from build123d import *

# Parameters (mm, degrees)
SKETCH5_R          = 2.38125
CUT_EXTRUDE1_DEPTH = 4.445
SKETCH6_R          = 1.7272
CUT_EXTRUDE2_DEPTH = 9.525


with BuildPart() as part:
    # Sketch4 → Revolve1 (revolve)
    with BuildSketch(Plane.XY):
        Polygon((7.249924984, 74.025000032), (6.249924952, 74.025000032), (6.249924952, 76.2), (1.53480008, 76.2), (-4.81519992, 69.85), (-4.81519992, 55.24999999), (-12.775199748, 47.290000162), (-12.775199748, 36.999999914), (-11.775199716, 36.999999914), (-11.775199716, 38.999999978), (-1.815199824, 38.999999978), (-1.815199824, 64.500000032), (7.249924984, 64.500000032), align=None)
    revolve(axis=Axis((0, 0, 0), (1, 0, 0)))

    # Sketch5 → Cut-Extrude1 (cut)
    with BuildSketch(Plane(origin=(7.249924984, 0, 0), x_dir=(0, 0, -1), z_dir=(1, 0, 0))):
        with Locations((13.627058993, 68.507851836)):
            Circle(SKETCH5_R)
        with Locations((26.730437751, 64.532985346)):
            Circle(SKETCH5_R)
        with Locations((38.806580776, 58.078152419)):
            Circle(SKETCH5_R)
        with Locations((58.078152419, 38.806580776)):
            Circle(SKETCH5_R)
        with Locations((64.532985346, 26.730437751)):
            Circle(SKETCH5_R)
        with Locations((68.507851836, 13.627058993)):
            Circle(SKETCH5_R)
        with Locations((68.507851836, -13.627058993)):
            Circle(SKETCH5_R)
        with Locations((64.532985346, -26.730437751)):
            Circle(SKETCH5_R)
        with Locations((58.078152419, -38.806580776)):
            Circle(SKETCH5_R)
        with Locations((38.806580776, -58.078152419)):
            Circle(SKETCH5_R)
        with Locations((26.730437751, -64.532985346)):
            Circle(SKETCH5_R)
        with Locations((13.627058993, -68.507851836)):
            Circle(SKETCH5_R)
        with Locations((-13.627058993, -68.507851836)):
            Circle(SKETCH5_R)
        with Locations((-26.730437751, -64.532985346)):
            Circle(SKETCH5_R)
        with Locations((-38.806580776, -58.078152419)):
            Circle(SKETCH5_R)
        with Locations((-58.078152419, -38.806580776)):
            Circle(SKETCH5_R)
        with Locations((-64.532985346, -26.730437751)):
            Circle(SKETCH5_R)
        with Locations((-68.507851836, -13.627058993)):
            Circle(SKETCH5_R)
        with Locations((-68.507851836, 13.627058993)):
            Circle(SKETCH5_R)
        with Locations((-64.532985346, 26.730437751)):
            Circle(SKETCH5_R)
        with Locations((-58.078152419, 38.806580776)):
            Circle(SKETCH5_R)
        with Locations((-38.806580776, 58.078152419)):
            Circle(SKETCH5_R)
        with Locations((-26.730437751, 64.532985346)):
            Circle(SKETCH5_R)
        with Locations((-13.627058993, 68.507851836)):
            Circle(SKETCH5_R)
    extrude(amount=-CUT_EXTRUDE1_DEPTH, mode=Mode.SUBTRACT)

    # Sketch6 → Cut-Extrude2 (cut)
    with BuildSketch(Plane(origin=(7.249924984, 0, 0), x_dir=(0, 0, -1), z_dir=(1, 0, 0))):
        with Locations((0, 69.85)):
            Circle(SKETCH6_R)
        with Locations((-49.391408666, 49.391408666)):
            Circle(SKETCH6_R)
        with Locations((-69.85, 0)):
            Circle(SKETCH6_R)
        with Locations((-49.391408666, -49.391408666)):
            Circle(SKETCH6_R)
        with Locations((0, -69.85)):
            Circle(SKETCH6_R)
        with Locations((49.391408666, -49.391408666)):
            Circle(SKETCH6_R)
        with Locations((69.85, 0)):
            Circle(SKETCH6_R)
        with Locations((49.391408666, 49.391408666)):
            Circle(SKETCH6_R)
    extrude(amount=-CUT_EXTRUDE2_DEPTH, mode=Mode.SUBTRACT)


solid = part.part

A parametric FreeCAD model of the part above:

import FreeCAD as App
import Part
import Sketcher
from FreeCAD import Vector
Q = App.Units.Quantity

doc = App.newDocument("Part")
body = doc.addObject("PartDesign::Body", "Body")

sketch1 = doc.addObject("Sketcher::SketchObject", "Sketch")
body.addObject(sketch1)
sketch1.AttachmentSupport = (doc.XY_Plane, [""])
sketch1.MapMode = "FlatFace"
sketch1.addGeometry([
    Part.LineSegment(Vector(7.2, 74, 0), Vector(6.2, 74, 0)),
    Part.LineSegment(Vector(6.2, 74, 0), Vector(6.2, 76.2, 0)),
    Part.LineSegment(Vector(6.2, 76.2, 0), Vector(1.5, 76.2, 0)),
    Part.LineSegment(Vector(1.5, 76.2, 0), Vector(-4.8, 69.8, 0)),
    Part.LineSegment(Vector(-4.8, 69.8, 0), Vector(-4.8, 55.2, 0)),
    Part.LineSegment(Vector(-4.8, 55.2, 0), Vector(-12.8, 47.3, 0)),
    Part.LineSegment(Vector(-12.8, 47.3, 0), Vector(-12.8, 37, 0)),
    Part.LineSegment(Vector(-12.8, 37, 0), Vector(-11.8, 37, 0)),
    Part.LineSegment(Vector(-11.8, 37, 0), Vector(-11.8, 39, 0)),
    Part.LineSegment(Vector(-11.8, 39, 0), Vector(-1.8, 39, 0)),
    Part.LineSegment(Vector(-1.8, 39, 0), Vector(-1.8, 64.5, 0)),
    Part.LineSegment(Vector(-1.8, 64.5, 0), Vector(7.2, 64.5, 0)),
    Part.LineSegment(Vector(7.2, 64.5, 0), Vector(7.2, 74, 0)),
], False)
sketch1.addConstraint([
    Sketcher.Constraint("Coincident", 0, 2, 1, 1),
    Sketcher.Constraint("Coincident", 1, 2, 2, 1),
    Sketcher.Constraint("Coincident", 2, 2, 3, 1),
    Sketcher.Constraint("Coincident", 3, 2, 4, 1),
    Sketcher.Constraint("Coincident", 4, 2, 5, 1),
    Sketcher.Constraint("Coincident", 5, 2, 6, 1),
    Sketcher.Constraint("Coincident", 6, 2, 7, 1),
    Sketcher.Constraint("Coincident", 7, 2, 8, 1),
    Sketcher.Constraint("Coincident", 8, 2, 9, 1),
    Sketcher.Constraint("Coincident", 9, 2, 10, 1),
    Sketcher.Constraint("Coincident", 10, 2, 11, 1),
    Sketcher.Constraint("Coincident", 11, 2, 12, 1),
    Sketcher.Constraint("Coincident", 12, 2, 0, 1),
    Sketcher.Constraint("Horizontal", 0),
    Sketcher.Constraint("Vertical", 1),
    Sketcher.Constraint("Horizontal", 2),
    Sketcher.Constraint("Vertical", 4),
    Sketcher.Constraint("Vertical", 6),
    Sketcher.Constraint("Horizontal", 7),
    Sketcher.Constraint("Vertical", 8),
    Sketcher.Constraint("Horizontal", 9),
    Sketcher.Constraint("Vertical", 10),
    Sketcher.Constraint("Horizontal", 11),
    Sketcher.Constraint("Vertical", 12),
    Sketcher.Constraint("Parallel", 3, 5),
    Sketcher.Constraint("Equal", 0, 7),
    Sketcher.Constraint("DistanceX", 0, 2, 0, 1, Q("1 mm")),
    Sketcher.Constraint("DistanceY", 8, 1, 8, 2, Q("2 mm")),
    Sketcher.Constraint("Angle", 3, Q("-135 deg")),
    Sketcher.Constraint("DistanceY", 4, 2, 4, 1, Q("14.6 mm")),
    Sketcher.Constraint("DistanceY", 10, 1, 10, 2, Q("25.5 mm")),
    Sketcher.Constraint("DistanceY", -1, 1, 6, 2, Q("37 mm")),
    Sketcher.Constraint("DistanceX", 4, 2, 9, 2, Q("3 mm")),
    Sketcher.Constraint("DistanceX", 9, 1, 9, 2, Q("9.96 mm")),
    Sketcher.Constraint("DistanceY", 6, 2, 6, 1, Q("10.29 mm")),
    Sketcher.Constraint("DistanceY", -1, 1, 1, 2, Q("76.2 mm")),
    Sketcher.Constraint("DistanceY", 1, 1, 1, 2, Q("2.175 mm")),
    Sketcher.Constraint("DistanceX", -1, 1, 2, 2, Q("1.5348 mm")),
    Sketcher.Constraint("DistanceX", 2, 2, 2, 1, Q("4.715125 mm")),
])
revolution = doc.addObject("PartDesign::Revolution", "Revolution")
body.addObject(revolution)
revolution.Profile = sketch1
revolution.ReferenceAxis = (sketch1, ["H_Axis"])
revolution.Angle = 360

sketch2 = doc.addObject("Sketcher::SketchObject", "Sketch001")
body.addObject(sketch2)
sketch2.AttachmentSupport = (doc.YZ_Plane, [""])
sketch2.MapMode = "FlatFace"
sketch2.AttachmentOffset = App.Placement(Vector(0, 0, 7.249925), App.Rotation())
sketch2.addGeometry([
    Part.Circle(Vector(68.5, -13.6, 0), Vector(0, 0, 1), 2.4),
    Part.Circle(Vector(64.5, -26.7, 0), Vector(0, 0, 1), 2.4),
    Part.Circle(Vector(58.1, -38.8, 0), Vector(0, 0, 1), 2.4),
    Part.Circle(Vector(38.8, -58.1, 0), Vector(0, 0, 1), 2.4),
    Part.Circle(Vector(26.7, -64.5, 0), Vector(0, 0, 1), 2.4),
    Part.Circle(Vector(13.6, -68.5, 0), Vector(0, 0, 1), 2.4),
    Part.Circle(Vector(-13.6, -68.5, 0), Vector(0, 0, 1), 2.4),
    Part.Circle(Vector(-26.7, -64.5, 0), Vector(0, 0, 1), 2.4),
    Part.Circle(Vector(-38.8, -58.1, 0), Vector(0, 0, 1), 2.4),
    Part.Circle(Vector(-58.1, -38.8, 0), Vector(0, 0, 1), 2.4),
    Part.Circle(Vector(-64.5, -26.7, 0), Vector(0, 0, 1), 2.4),
    Part.Circle(Vector(-68.5, -13.6, 0), Vector(0, 0, 1), 2.4),
    Part.Circle(Vector(-68.5, 13.6, 0), Vector(0, 0, 1), 2.4),
    Part.Circle(Vector(-64.5, 26.7, 0), Vector(0, 0, 1), 2.4),
    Part.Circle(Vector(-58.1, 38.8, 0), Vector(0, 0, 1), 2.4),
    Part.Circle(Vector(-38.8, 58.1, 0), Vector(0, 0, 1), 2.4),
    Part.Circle(Vector(-26.7, 64.5, 0), Vector(0, 0, 1), 2.4),
    Part.Circle(Vector(-13.6, 68.5, 0), Vector(0, 0, 1), 2.4),
    Part.Circle(Vector(13.6, 68.5, 0), Vector(0, 0, 1), 2.4),
    Part.Circle(Vector(26.7, 64.5, 0), Vector(0, 0, 1), 2.4),
    Part.Circle(Vector(38.8, 58.1, 0), Vector(0, 0, 1), 2.4),
    Part.Circle(Vector(58.1, 38.8, 0), Vector(0, 0, 1), 2.4),
    Part.Circle(Vector(64.5, 26.7, 0), Vector(0, 0, 1), 2.4),
    Part.Circle(Vector(68.5, 13.6, 0), Vector(0, 0, 1), 2.4),
], False)
sketch2.addConstraint([
    Sketcher.Constraint("Equal", 0, 1),
    Sketcher.Constraint("Equal", 1, 2),
    Sketcher.Constraint("Equal", 2, 3),
    Sketcher.Constraint("Equal", 3, 4),
    Sketcher.Constraint("Equal", 4, 5),
    Sketcher.Constraint("Equal", 5, 6),
    Sketcher.Constraint("Equal", 6, 7),
    Sketcher.Constraint("Equal", 7, 8),
    Sketcher.Constraint("Equal", 8, 9),
    Sketcher.Constraint("Equal", 9, 10),
    Sketcher.Constraint("Equal", 10, 11),
    Sketcher.Constraint("Equal", 11, 12),
    Sketcher.Constraint("Equal", 12, 13),
    Sketcher.Constraint("Equal", 13, 14),
    Sketcher.Constraint("Equal", 14, 15),
    Sketcher.Constraint("Equal", 15, 16),
    Sketcher.Constraint("Equal", 16, 17),
    Sketcher.Constraint("Equal", 17, 18),
    Sketcher.Constraint("Equal", 18, 19),
    Sketcher.Constraint("Equal", 19, 20),
    Sketcher.Constraint("Equal", 20, 21),
    Sketcher.Constraint("Equal", 21, 22),
    Sketcher.Constraint("Equal", 22, 23),
    Sketcher.Constraint("Symmetric", 0, 3, 12, 3, -1, 1),
    Sketcher.Constraint("Symmetric", 1, 3, 13, 3, -1, 1),
    Sketcher.Constraint("Symmetric", 2, 3, 14, 3, -1, 1),
    Sketcher.Constraint("Symmetric", 3, 3, 15, 3, -1, 1),
    Sketcher.Constraint("Symmetric", 4, 3, 16, 3, -1, 1),
    Sketcher.Constraint("Symmetric", 5, 3, 17, 3, -1, 1),
    Sketcher.Constraint("Symmetric", 6, 3, 18, 3, -1, 1),
    Sketcher.Constraint("Symmetric", 7, 3, 19, 3, -1, 1),
    Sketcher.Constraint("Symmetric", 8, 3, 20, 3, -1, 1),
    Sketcher.Constraint("Symmetric", 9, 3, 21, 3, -1, 1),
    Sketcher.Constraint("Symmetric", 10, 3, 22, 3, -1, 1),
    Sketcher.Constraint("Symmetric", 11, 3, 23, 3, -1, 1),
    Sketcher.Constraint("Symmetric", 5, 3, 6, 3, -2),
    Sketcher.Constraint("Symmetric", 4, 3, 7, 3, -2),
    Sketcher.Constraint("Symmetric", 3, 3, 8, 3, -2),
    Sketcher.Constraint("Symmetric", 2, 3, 9, 3, -2),
    Sketcher.Constraint("Symmetric", 1, 3, 10, 3, -2),
    Sketcher.Constraint("Symmetric", 0, 3, 11, 3, -2),
    Sketcher.Constraint("Diameter", 0, Q("4.7625 mm")),
    Sketcher.Constraint("DistanceX", 2, 3, 0, 3, Q("10.429699 mm")),
    Sketcher.Constraint("DistanceY", 5, 3, 3, 3, Q("10.429699 mm")),
    Sketcher.Constraint("DistanceX", -1, 1, 0, 3, Q("68.507852 mm")),
    Sketcher.Constraint("DistanceY", 0, 3, -1, 1, Q("13.627059 mm")),
    Sketcher.Constraint("DistanceY", 2, 3, -1, 1, Q("38.806581 mm")),
    Sketcher.Constraint("DistanceX", -1, 1, 3, 3, Q("38.806581 mm")),
    Sketcher.Constraint("DistanceX", -1, 1, 5, 3, Q("13.627059 mm")),
    Sketcher.Constraint("DistanceY", 5, 3, -1, 1, Q("68.507852 mm")),
    Sketcher.Constraint("DistanceY", 1, 3, 0, 3, Q("13.103379 mm")),
    Sketcher.Constraint("DistanceX", 5, 3, 4, 3, Q("13.103379 mm")),
    Sketcher.Constraint("DistanceX", -1, 1, 1, 3, Q("64.532985 mm")),
    Sketcher.Constraint("DistanceY", 4, 3, -1, 1, Q("64.532985 mm")),
])
pocket1 = doc.addObject("PartDesign::Pocket", "Pocket")
body.addObject(pocket1)
pocket1.Profile = sketch2
pocket1.Length = 4.445

sketch3 = doc.addObject("Sketcher::SketchObject", "Sketch002")
body.addObject(sketch3)
sketch3.AttachmentSupport = (doc.YZ_Plane, [""])
sketch3.MapMode = "FlatFace"
sketch3.AttachmentOffset = App.Placement(Vector(0, 0, 7.249925), App.Rotation())
sketch3.addGeometry([
    Part.Circle(Vector(69.8, 0, 0), Vector(0, 0, 1), 1.7),
    Part.Circle(Vector(49.4, 49.4, 0), Vector(0, 0, 1), 1.7),
    Part.Circle(Vector(0, 69.8, 0), Vector(0, 0, 1), 1.7),
    Part.Circle(Vector(-49.4, 49.4, 0), Vector(0, 0, 1), 1.7),
    Part.Circle(Vector(-69.8, 0, 0), Vector(0, 0, 1), 1.7),
    Part.Circle(Vector(-49.4, -49.4, 0), Vector(0, 0, 1), 1.7),
    Part.Circle(Vector(0, -69.8, 0), Vector(0, 0, 1), 1.7),
    Part.Circle(Vector(49.4, -49.4, 0), Vector(0, 0, 1), 1.7),
], False)
sketch3.addConstraint([
    Sketcher.Constraint("Equal", 0, 1),
    Sketcher.Constraint("Equal", 1, 2),
    Sketcher.Constraint("Equal", 2, 3),
    Sketcher.Constraint("Equal", 3, 4),
    Sketcher.Constraint("Equal", 4, 5),
    Sketcher.Constraint("Equal", 5, 6),
    Sketcher.Constraint("Equal", 6, 7),
    Sketcher.Constraint("Symmetric", 0, 3, 4, 3, -1, 1),
    Sketcher.Constraint("Symmetric", 1, 3, 5, 3, -1, 1),
    Sketcher.Constraint("Symmetric", 2, 3, 6, 3, -1, 1),
    Sketcher.Constraint("Symmetric", 3, 3, 7, 3, -1, 1),
    Sketcher.Constraint("Symmetric", 1, 3, 3, 3, -2),
    Sketcher.Constraint("PointOnObject", 0, 3, -1),
    Sketcher.Constraint("PointOnObject", 2, 3, -2),
    Sketcher.Constraint("Diameter", 0, Q("3.4544 mm")),
    Sketcher.Constraint("DistanceX", 4, 3, 0, 3, Q("139.7 mm")),
    Sketcher.Constraint("DistanceY", -1, 1, 2, 3, Q("69.85 mm")),
    Sketcher.Constraint("DistanceX", -1, 1, 1, 3, Q("49.391409 mm")),
    Sketcher.Constraint("DistanceY", -1, 1, 1, 3, Q("49.391409 mm")),
])
pocket2 = doc.addObject("PartDesign::Pocket", "Pocket001")
body.addObject(pocket2)
pocket2.Profile = sketch3
pocket2.Length = 9.525

doc.recompute()
